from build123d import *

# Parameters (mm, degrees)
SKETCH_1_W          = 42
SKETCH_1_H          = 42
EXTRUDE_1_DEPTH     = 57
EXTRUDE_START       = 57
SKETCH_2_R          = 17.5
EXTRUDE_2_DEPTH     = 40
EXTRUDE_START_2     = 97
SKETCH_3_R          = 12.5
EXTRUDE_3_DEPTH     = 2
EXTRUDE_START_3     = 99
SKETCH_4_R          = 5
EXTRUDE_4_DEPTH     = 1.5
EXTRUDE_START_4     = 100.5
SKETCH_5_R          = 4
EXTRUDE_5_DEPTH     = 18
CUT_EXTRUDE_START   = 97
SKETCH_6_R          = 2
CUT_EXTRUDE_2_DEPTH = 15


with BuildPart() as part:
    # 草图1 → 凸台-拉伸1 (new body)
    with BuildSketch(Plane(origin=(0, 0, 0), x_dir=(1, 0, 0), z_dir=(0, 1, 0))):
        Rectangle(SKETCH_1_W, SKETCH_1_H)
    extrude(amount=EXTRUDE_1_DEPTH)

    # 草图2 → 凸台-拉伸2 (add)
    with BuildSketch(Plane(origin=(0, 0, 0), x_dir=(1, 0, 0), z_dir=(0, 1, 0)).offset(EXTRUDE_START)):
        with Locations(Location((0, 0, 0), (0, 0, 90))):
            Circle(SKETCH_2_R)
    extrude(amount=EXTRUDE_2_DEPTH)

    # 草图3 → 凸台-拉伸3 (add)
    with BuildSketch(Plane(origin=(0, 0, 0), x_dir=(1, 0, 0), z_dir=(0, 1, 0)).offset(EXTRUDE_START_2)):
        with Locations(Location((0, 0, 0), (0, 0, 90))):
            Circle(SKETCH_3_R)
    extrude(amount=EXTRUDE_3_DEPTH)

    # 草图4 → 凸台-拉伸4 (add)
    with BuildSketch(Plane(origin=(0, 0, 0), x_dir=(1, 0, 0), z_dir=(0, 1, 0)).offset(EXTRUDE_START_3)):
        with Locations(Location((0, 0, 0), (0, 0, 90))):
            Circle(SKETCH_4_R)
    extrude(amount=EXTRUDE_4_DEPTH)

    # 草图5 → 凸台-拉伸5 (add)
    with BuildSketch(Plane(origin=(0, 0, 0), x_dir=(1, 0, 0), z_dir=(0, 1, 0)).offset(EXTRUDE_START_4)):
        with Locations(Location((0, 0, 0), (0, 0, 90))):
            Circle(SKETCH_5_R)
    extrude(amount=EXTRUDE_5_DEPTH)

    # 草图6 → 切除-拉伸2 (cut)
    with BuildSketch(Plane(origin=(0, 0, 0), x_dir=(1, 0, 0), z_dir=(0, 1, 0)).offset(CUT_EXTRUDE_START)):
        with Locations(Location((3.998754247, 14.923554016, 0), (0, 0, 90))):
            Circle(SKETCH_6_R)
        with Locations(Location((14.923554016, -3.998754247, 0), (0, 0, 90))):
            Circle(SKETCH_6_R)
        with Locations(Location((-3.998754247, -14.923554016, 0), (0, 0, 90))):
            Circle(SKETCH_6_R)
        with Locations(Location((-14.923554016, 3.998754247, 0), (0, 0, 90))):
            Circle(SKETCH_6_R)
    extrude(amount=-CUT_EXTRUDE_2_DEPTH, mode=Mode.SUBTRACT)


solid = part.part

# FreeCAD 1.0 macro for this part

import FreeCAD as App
import Part
import Sketcher
from FreeCAD import Vector
Q = App.Units.Quantity

doc = App.newDocument("Part")
params = doc.addObject("Spreadsheet::Sheet", "Params")
for row, (alias, value) in enumerate([
    ("sketch1_width", "42 mm"),
    ("pad1_length", "57 mm"),
    ("sketch2_diameter", "35 mm"),
    ("pad2_length", "40 mm"),
    ("sketch3_diameter", "25 mm"),
    ("pad3_length", "2 mm"),
    ("sketch4_diameter", "10 mm"),
    ("pad4_length", "1.5 mm"),
    ("sketch5_diameter", "8 mm"),
    ("pad5_length", "18 mm"),
    ("sketch6_diameter", "4 mm"),
    ("pocket1_length", "15 mm"),
], start=1):
    params.set(f"A{row}", alias)
    params.set(f"B{row}", "=" + value)
    params.setAlias(f"B{row}", alias)

body = doc.addObject("PartDesign::Body", "Body")

sketch1 = doc.addObject("Sketcher::SketchObject", "Sketch")
body.addObject(sketch1)
sketch1.AttachmentSupport = (doc.XZ_Plane, [""])
sketch1.MapMode = "FlatFace"
sketch1.addGeometry(Part.LineSegment(Vector(-21, -21, 0), Vector(-21, 21, 0)), False)
sketch1.addGeometry(Part.LineSegment(Vector(-21, 21, 0), Vector(21, 21, 0)), False)
sketch1.addGeometry(Part.LineSegment(Vector(21, 21, 0), Vector(21, -21, 0)), False)
sketch1.addGeometry(Part.LineSegment(Vector(21, -21, 0), Vector(-21, -21, 0)), False)
sketch1.addConstraint(Sketcher.Constraint("Coincident", 0, 2, 1, 1))
sketch1.addConstraint(Sketcher.Constraint("Coincident", 1, 2, 2, 1))
sketch1.addConstraint(Sketcher.Constraint("Coincident", 2, 2, 3, 1))
sketch1.addConstraint(Sketcher.Constraint("Coincident", 3, 2, 0, 1))
sketch1.addConstraint(Sketcher.Constraint("Vertical", 0))
sketch1.addConstraint(Sketcher.Constraint("Horizontal", 1))
sketch1.addConstraint(Sketcher.Constraint("Vertical", 2))
sketch1.addConstraint(Sketcher.Constraint("Horizontal", 3))
sketch1.addConstraint(Sketcher.Constraint("Symmetric", 0, 2, 2, 2, -1, 1))
sketch1.addConstraint(Sketcher.Constraint("Equal", 3, 0))
sketch1.addConstraint(Sketcher.Constraint("DistanceX", 1, 1, 1, 2, Q("42 mm")))
sketch1.setExpression("Constraints[10]", "Params.sketch1_width")
pad1 = doc.addObject("PartDesign::Pad", "Pad")
body.addObject(pad1)
pad1.Profile = sketch1
pad1.setExpression("Length", "Params.pad1_length")
pad1.Reversed = True

sketch2 = doc.addObject("Sketcher::SketchObject", "Sketch001")
body.addObject(sketch2)
sketch2.AttachmentSupport = (doc.XZ_Plane, [""])
sketch2.MapMode = "FlatFace"
sketch2.AttachmentOffset = App.Placement(Vector(0, 0, -57), App.Rotation())
sketch2.addGeometry(Part.Circle(Vector(0, 0, 0), Vector(0, 0, 1), 18), False)
sketch2.addConstraint(Sketcher.Constraint("Coincident", 0, 3, -1, 1))
sketch2.addConstraint(Sketcher.Constraint("Diameter", 0, Q("35 mm")))
sketch2.setExpression("Constraints[1]", "Params.sketch2_diameter")
pad2 = doc.addObject("PartDesign::Pad", "Pad001")
body.addObject(pad2)
pad2.Profile = sketch2
pad2.setExpression("Length", "Params.pad2_length")
pad2.Reversed = True

sketch3 = doc.addObject("Sketcher::SketchObject", "Sketch002")
body.addObject(sketch3)
sketch3.AttachmentSupport = (doc.XZ_Plane, [""])
sketch3.MapMode = "FlatFace"
sketch3.AttachmentOffset = App.Placement(Vector(0, 0, -97), App.Rotation())
sketch3.addGeometry(Part.Circle(Vector(0, 0, 0), Vector(0, 0, 1), 12), False)
sketch3.addConstraint(Sketcher.Constraint("Coincident", 0, 3, -1, 1))
sketch3.addConstraint(Sketcher.Constraint("Diameter", 0, Q("25 mm")))
sketch3.setExpression("Constraints[1]", "Params.sketch3_diameter")
pad3 = doc.addObject("PartDesign::Pad", "Pad002")
body.addObject(pad3)
pad3.Profile = sketch3
pad3.setExpression("Length", "Params.pad3_length")
pad3.Reversed = True

sketch4 = doc.addObject("Sketcher::SketchObject", "Sketch003")
body.addObject(sketch4)
sketch4.AttachmentSupport = (doc.XZ_Plane, [""])
sketch4.MapMode = "FlatFace"
sketch4.AttachmentOffset = App.Placement(Vector(0, 0, -99), App.Rotation())
sketch4.addGeometry(Part.Circle(Vector(0, 0, 0), Vector(0, 0, 1), 5), False)
sketch4.addConstraint(Sketcher.Constraint("Coincident", 0, 3, -1, 1))
sketch4.addConstraint(Sketcher.Constraint("Diameter", 0, Q("10 mm")))
sketch4.setExpression("Constraints[1]", "Params.sketch4_diameter")
pad4 = doc.addObject("PartDesign::Pad", "Pad003")
body.addObject(pad4)
pad4.Profile = sketch4
pad4.setExpression("Length", "Params.pad4_length")
pad4.Reversed = True

sketch5 = doc.addObject("Sketcher::SketchObject", "Sketch004")
body.addObject(sketch5)
sketch5.AttachmentSupport = (doc.XZ_Plane, [""])
sketch5.MapMode = "FlatFace"
sketch5.AttachmentOffset = App.Placement(Vector(0, 0, -100.5), App.Rotation())
sketch5.addGeometry(Part.Circle(Vector(0, 0, 0), Vector(0, 0, 1), 4), False)
sketch5.addConstraint(Sketcher.Constraint("Coincident", 0, 3, -1, 1))
sketch5.addConstraint(Sketcher.Constraint("Diameter", 0, Q("8 mm")))
sketch5.setExpression("Constraints[1]", "Params.sketch5_diameter")
pad5 = doc.addObject("PartDesign::Pad", "Pad004")
body.addObject(pad5)
pad5.Profile = sketch5
pad5.setExpression("Length", "Params.pad5_length")
pad5.Reversed = True

sketch6 = doc.addObject("Sketcher::SketchObject", "Sketch005")
body.addObject(sketch6)
sketch6.AttachmentSupport = (doc.XZ_Plane, [""])
sketch6.MapMode = "FlatFace"
sketch6.AttachmentOffset = App.Placement(Vector(0, 0, -97), App.Rotation())
sketch6.addGeometry(Part.Circle(Vector(4, -14.9, 0), Vector(0, 0, 1), 2), False)
sketch6.addGeometry(Part.Circle(Vector(14.9, 4, 0), Vector(0, 0, 1), 2), False)
sketch6.addGeometry(Part.Circle(Vector(-4, 14.9, 0), Vector(0, 0, 1), 2), False)
sketch6.addGeometry(Part.Circle(Vector(-14.9, -4, 0), Vector(0, 0, 1), 2), False)
sketch6.addConstraint(Sketcher.Constraint("Equal", 0, 1))
sketch6.addConstraint(Sketcher.Constraint("Equal", 1, 2))
sketch6.addConstraint(Sketcher.Constraint("Equal", 2, 3))
sketch6.addConstraint(Sketcher.Constraint("Symmetric", 0, 3, 2, 3, -1, 1))
sketch6.addConstraint(Sketcher.Constraint("Symmetric", 1, 3, 3, 3, -1, 1))
sketch6.addConstraint(Sketcher.Constraint("Diameter", 0, Q("4 mm")))
sketch6.addConstraint(Sketcher.Constraint("DistanceX", 0, 3, 1, 3, Q("10.9248 mm")))
sketch6.addConstraint(Sketcher.Constraint("DistanceY", 1, 3, 2, 3, Q("10.9248 mm")))
sketch6.addConstraint(Sketcher.Constraint("DistanceY", 0, 3, 1, 3, Q("18.922308 mm")))
sketch6.addConstraint(Sketcher.Constraint("DistanceX", 2, 3, 1, 3, Q("18.922308 mm")))
sketch6.setExpression("Constraints[5]", "Params.sketch6_diameter")
pocket1 = doc.addObject("PartDesign::Pocket", "Pocket")
body.addObject(pocket1)
pocket1.Profile = sketch6
pocket1.setExpression("Length", "Params.pocket1_length")
pocket1.Reversed = True

doc.recompute()
